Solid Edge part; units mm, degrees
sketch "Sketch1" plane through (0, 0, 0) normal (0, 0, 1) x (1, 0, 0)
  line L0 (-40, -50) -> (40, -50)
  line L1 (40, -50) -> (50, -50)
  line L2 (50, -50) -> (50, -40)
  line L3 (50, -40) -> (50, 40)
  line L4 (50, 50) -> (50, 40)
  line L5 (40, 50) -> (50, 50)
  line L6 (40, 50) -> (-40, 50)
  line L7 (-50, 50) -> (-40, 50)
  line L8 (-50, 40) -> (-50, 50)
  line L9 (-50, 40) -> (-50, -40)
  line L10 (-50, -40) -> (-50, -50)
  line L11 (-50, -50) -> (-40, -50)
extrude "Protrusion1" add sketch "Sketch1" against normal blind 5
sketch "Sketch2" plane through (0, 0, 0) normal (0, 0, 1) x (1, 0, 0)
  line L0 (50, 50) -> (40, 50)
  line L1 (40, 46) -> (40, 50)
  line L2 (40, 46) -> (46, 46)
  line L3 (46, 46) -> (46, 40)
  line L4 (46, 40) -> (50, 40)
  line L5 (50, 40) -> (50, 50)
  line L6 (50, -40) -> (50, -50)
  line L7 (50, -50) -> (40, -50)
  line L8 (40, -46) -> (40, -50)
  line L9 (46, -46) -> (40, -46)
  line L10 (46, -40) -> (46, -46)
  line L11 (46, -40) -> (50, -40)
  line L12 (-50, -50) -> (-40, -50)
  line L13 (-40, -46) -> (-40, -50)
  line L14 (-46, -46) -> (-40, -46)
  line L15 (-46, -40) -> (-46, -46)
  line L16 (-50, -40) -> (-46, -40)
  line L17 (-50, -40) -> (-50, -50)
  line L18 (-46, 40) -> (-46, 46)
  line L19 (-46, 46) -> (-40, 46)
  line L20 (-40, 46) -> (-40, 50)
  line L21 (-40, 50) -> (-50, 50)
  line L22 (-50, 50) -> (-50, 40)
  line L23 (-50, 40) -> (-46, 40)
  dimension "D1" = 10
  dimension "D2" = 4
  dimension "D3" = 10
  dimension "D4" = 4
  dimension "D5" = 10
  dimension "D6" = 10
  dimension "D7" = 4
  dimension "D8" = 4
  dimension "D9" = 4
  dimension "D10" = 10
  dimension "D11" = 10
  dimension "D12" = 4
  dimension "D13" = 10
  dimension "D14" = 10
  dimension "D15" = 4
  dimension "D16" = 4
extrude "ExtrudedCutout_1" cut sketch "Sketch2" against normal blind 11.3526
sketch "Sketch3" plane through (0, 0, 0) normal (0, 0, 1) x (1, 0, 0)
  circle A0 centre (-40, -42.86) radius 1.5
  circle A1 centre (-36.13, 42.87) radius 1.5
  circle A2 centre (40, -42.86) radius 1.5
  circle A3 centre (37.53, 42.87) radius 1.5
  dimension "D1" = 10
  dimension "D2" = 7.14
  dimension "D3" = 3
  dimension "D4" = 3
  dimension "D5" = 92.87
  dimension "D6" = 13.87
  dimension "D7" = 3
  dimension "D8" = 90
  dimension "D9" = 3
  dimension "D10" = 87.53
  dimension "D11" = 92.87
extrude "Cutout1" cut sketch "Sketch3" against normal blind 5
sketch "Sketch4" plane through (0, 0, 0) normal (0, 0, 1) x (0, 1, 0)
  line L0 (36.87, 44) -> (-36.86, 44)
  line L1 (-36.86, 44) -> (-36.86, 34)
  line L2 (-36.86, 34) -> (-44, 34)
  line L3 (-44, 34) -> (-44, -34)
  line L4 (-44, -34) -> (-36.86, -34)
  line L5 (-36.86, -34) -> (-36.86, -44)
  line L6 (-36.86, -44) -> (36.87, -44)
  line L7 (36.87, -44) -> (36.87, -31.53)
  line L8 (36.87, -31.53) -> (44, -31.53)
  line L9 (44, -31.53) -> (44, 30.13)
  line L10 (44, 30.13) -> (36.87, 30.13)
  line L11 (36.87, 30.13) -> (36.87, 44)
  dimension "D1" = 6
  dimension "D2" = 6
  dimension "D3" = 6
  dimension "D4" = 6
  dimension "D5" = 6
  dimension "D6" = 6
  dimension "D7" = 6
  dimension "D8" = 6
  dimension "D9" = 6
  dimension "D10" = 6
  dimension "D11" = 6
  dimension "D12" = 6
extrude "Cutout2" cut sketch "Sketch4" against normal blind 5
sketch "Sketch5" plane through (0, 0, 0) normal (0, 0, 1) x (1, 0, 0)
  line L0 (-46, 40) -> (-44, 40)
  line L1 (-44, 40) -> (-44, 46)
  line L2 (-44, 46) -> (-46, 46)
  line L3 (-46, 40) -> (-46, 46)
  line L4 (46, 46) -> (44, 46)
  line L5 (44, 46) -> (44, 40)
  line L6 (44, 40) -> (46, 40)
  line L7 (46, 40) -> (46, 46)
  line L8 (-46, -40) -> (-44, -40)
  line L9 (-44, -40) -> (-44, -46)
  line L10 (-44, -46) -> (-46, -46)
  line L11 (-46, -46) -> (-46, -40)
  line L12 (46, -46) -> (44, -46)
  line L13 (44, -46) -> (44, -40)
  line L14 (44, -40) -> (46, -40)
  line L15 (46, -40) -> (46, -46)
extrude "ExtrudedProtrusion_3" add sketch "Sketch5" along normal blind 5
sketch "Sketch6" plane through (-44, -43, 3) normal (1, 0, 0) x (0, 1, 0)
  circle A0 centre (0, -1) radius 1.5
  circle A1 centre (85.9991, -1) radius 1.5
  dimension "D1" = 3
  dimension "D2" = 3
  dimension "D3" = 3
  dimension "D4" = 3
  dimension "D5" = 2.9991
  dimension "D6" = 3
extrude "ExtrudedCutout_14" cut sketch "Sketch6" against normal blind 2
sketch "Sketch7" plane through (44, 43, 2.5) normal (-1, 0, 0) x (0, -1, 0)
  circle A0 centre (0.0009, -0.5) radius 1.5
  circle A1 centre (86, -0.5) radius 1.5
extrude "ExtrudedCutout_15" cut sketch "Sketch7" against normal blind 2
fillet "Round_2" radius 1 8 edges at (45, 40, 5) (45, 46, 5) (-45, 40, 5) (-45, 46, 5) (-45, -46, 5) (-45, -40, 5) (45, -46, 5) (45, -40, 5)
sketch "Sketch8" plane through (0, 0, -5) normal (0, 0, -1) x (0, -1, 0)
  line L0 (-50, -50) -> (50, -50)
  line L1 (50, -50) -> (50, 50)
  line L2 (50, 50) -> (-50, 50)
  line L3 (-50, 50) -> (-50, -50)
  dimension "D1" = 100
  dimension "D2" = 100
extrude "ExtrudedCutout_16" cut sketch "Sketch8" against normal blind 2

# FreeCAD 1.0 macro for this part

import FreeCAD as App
import Part
import Sketcher

V = App.Vector
Q = App.Units.Quantity


def edges_at(feature, points):
    """Names of the edges that pass closest to the given points."""
    edges = feature.Shape.Edges
    near = lambda p: min(range(len(edges)), key=lambda i: edges[i].distToShape(Part.Vertex(*p))[0])
    return sorted({f"Edge{near(p) + 1}" for p in points})

doc = App.newDocument("Part")
body = doc.addObject("PartDesign::Body", "Body")

# Sketch on XY plane
sketch1 = body.newObject("Sketcher::SketchObject", "Sketch")
sketch1.AttachmentSupport = (doc.getObject("XY_Plane"), [""])
sketch1.MapMode = "FlatFace"
sketch1.addGeometry([
    Part.LineSegment(V(-50, -50, 0), V(50, -50, 0)),
    Part.LineSegment(V(50, -50, 0), V(50, 50, 0)),
    Part.LineSegment(V(50, 50, 0), V(-50, 50, 0)),
    Part.LineSegment(V(-50, 50, 0), V(-50, -50, 0)),
], False)
sketch1.addConstraint([
    Sketcher.Constraint("Coincident", 0, 2, 1, 1),
    Sketcher.Constraint("Coincident", 1, 2, 2, 1),
    Sketcher.Constraint("Coincident", 2, 2, 3, 1),
    Sketcher.Constraint("Coincident", 3, 2, 0, 1),
    Sketcher.Constraint("Horizontal", 0),
    Sketcher.Constraint("Vertical", 1),
    Sketcher.Constraint("Horizontal", 2),
    Sketcher.Constraint("Vertical", 3),
    Sketcher.Constraint("Symmetric", 0, 2, 2, 2, -1, 1),
    Sketcher.Constraint("Equal", 2, 1),
    Sketcher.Constraint("DistanceX", 0, 1, 0, 2, Q("100 mm")),
])
pad1 = body.newObject("PartDesign::Pad", "Pad")
pad1.Profile = sketch1
pad1.Length = 5
pad1.Reversed = True

# Sketch on XY plane
sketch2 = body.newObject("Sketcher::SketchObject", "Sketch001")
sketch2.AttachmentSupport = (doc.getObject("XY_Plane"), [""])
sketch2.MapMode = "FlatFace"
sketch2.addGeometry([
    Part.LineSegment(V(50, 40, 0), V(50, 50, 0)),  # 0
    Part.LineSegment(V(50, 50, 0), V(40, 50, 0)),  # 1
    Part.LineSegment(V(40, 50, 0), V(40, 46, 0)),  # 2
    Part.LineSegment(V(40, 46, 0), V(46, 46, 0)),  # 3
    Part.LineSegment(V(46, 46, 0), V(46, 40, 0)),  # 4
    Part.LineSegment(V(46, 40, 0), V(50, 40, 0)),  # 5
    Part.LineSegment(V(50, -50, 0), V(50, -40, 0)),  # 6
    Part.LineSegment(V(50, -40, 0), V(46, -40, 0)),  # 7
    Part.LineSegment(V(46, -40, 0), V(46, -46, 0)),  # 8
    Part.LineSegment(V(46, -46, 0), V(40, -46, 0)),  # 9
    Part.LineSegment(V(40, -46, 0), V(40, -50, 0)),  # 10
    Part.LineSegment(V(40, -50, 0), V(50, -50, 0)),  # 11
    Part.LineSegment(V(-50, -40, 0), V(-50, -50, 0)),  # 12
    Part.LineSegment(V(-50, -50, 0), V(-40, -50, 0)),  # 13
    Part.LineSegment(V(-40, -50, 0), V(-40, -46, 0)),  # 14
    Part.LineSegment(V(-40, -46, 0), V(-46, -46, 0)),  # 15
    Part.LineSegment(V(-46, -46, 0), V(-46, -40, 0)),  # 16
    Part.LineSegment(V(-46, -40, 0), V(-50, -40, 0)),  # 17
    Part.LineSegment(V(-50, 40, 0), V(-46, 40, 0)),  # 18
    Part.LineSegment(V(-46, 40, 0), V(-46, 46, 0)),  # 19
    Part.LineSegment(V(-46, 46, 0), V(-40, 46, 0)),  # 20
    Part.LineSegment(V(-40, 46, 0), V(-40, 50, 0)),  # 21
    Part.LineSegment(V(-40, 50, 0), V(-50, 50, 0)),  # 22
    Part.LineSegment(V(-50, 50, 0), V(-50, 40, 0)),  # 23
], False)
sketch2.addConstraint([
    Sketcher.Constraint("Coincident", 0, 2, 1, 1),
    Sketcher.Constraint("Coincident", 1, 2, 2, 1),
    Sketcher.Constraint("Coincident", 2, 2, 3, 1),
    Sketcher.Constraint("Coincident", 3, 2, 4, 1),
    Sketcher.Constraint("Coincident", 4, 2, 5, 1),
    Sketcher.Constraint("Coincident", 5, 2, 0, 1),
    Sketcher.Constraint("Coincident", 6, 2, 7, 1),
    Sketcher.Constraint("Coincident", 7, 2, 8, 1),
    Sketcher.Constraint("Coincident", 8, 2, 9, 1),
    Sketcher.Constraint("Coincident", 9, 2, 10, 1),
    Sketcher.Constraint("Coincident", 10, 2, 11, 1),
    Sketcher.Constraint("Coincident", 11, 2, 6, 1),
    Sketcher.Constraint("Coincident", 12, 2, 13, 1),
    Sketcher.Constraint("Coincident", 13, 2, 14, 1),
    Sketcher.Constraint("Coincident", 14, 2, 15, 1),
    Sketcher.Constraint("Coincident", 15, 2, 16, 1),
    Sketcher.Constraint("Coincident", 16, 2, 17, 1),
    Sketcher.Constraint("Coincident", 17, 2, 12, 1),
    Sketcher.Constraint("Coincident", 18, 2, 19, 1),
    Sketcher.Constraint("Coincident", 19, 2, 20, 1),
    Sketcher.Constraint("Coincident", 20, 2, 21, 1),
    Sketcher.Constraint("Coincident", 21, 2, 22, 1),
    Sketcher.Constraint("Coincident", 22, 2, 23, 1),
    Sketcher.Constraint("Coincident", 23, 2, 18, 1),
    Sketcher.Constraint("Vertical", 0),
    Sketcher.Constraint("Horizontal", 1),
    Sketcher.Constraint("Vertical", 2),
    Sketcher.Constraint("Horizontal", 3),
    Sketcher.Constraint("Vertical", 4),
    Sketcher.Constraint("Horizontal", 5),
    Sketcher.Constraint("Vertical", 6),
    Sketcher.Constraint("Horizontal", 7),
    Sketcher.Constraint("Vertical", 8),
    Sketcher.Constraint("Horizontal", 9),
    Sketcher.Constraint("Vertical", 10),
    Sketcher.Constraint("Horizontal", 11),
    Sketcher.Constraint("Vertical", 12),
    Sketcher.Constraint("Horizontal", 13),
    Sketcher.Constraint("Vertical", 14),
    Sketcher.Constraint("Horizontal", 15),
    Sketcher.Constraint("Vertical", 16),
    Sketcher.Constraint("Horizontal", 17),
    Sketcher.Constraint("Horizontal", 18),
    Sketcher.Constraint("Vertical", 19),
    Sketcher.Constraint("Horizontal", 20),
    Sketcher.Constraint("Vertical", 21),
    Sketcher.Constraint("Horizontal", 22),
    Sketcher.Constraint("Vertical", 23),
    Sketcher.Constraint("Symmetric", 0, 2, 12, 2, -1, 1),
    Sketcher.Constraint("Symmetric", 2, 2, 14, 2, -1, 1),
    Sketcher.Constraint("Symmetric", 4, 2, 16, 2, -1, 1),
    Sketcher.Constraint("Symmetric", 7, 2, 18, 2, -1, 1),
    Sketcher.Constraint("Symmetric", 9, 2, 20, 2, -1, 1),
    Sketcher.Constraint("Symmetric", 11, 2, 22, 2, -1, 1),
    Sketcher.Constraint("Symmetric", 11, 2, 12, 2, -2),
    Sketcher.Constraint("Symmetric", 9, 2, 14, 2, -2),
    Sketcher.Constraint("Symmetric", 7, 2, 16, 2, -2),
    Sketcher.Constraint("Equal", 22, 0),
    Sketcher.Constraint("Equal", 18, 2),
    Sketcher.Constraint("DistanceX", -1, 1, 0, 2, Q("50 mm")),
    Sketcher.Constraint("DistanceY", -1, 1, 0, 2, Q("50 mm")),
    Sketcher.Constraint("DistanceX", -1, 1, 1, 2, Q("40 mm")),
    Sketcher.Constraint("DistanceY", -1, 1, 2, 2, Q("46 mm")),
])
pocket1 = body.newObject("PartDesign::Pocket", "Pocket")
pocket1.Profile = sketch2
pocket1.Length = 11.3526

# Sketch on XY plane
sketch3 = body.newObject("Sketcher::SketchObject", "Sketch002")
sketch3.AttachmentSupport = (doc.getObject("XY_Plane"), [""])
sketch3.MapMode = "FlatFace"
sketch3.addGeometry([
    Part.Circle(V(-40, -42.9, 0), V(0, 0, 1), 1.5),
    Part.Circle(V(-36.1, 42.9, 0), V(0, 0, 1), 1.5),
    Part.Circle(V(40, -42.9, 0), V(0, 0, 1), 1.5),
    Part.Circle(V(37.5, 42.9, 0), V(0, 0, 1), 1.5),
], False)
sketch3.addConstraint([
    Sketcher.Constraint("Equal", 0, 1),
    Sketcher.Constraint("Equal", 1, 2),
    Sketcher.Constraint("Equal", 2, 3),
    Sketcher.Constraint("Symmetric", 0, 3, 2, 3, -2),
    Sketcher.Constraint("Horizontal", 1, 3, 3, 3),
    Sketcher.Constraint("Diameter", 0, Q("3 mm")),
    Sketcher.Constraint("DistanceX", 0, 3, -1, 1, Q("40 mm")),
    Sketcher.Constraint("DistanceY", 0, 3, -1, 1, Q("42.86 mm")),
    Sketcher.Constraint("DistanceX", 1, 3, -1, 1, Q("36.13 mm")),
    Sketcher.Constraint("DistanceY", -1, 1, 1, 3, Q("42.87 mm")),
    Sketcher.Constraint("DistanceX", -1, 1, 3, 3, Q("37.53 mm")),
])
pocket2 = body.newObject("PartDesign::Pocket", "Pocket001")
pocket2.Profile = sketch3
pocket2.Length = 5

# Sketch on XY plane
sketch4 = body.newObject("Sketcher::SketchObject", "Sketch003")
sketch4.AttachmentSupport = (doc.getObject("XY_Plane"), [""])
sketch4.MapMode = "FlatFace"
sketch4.addGeometry([
    Part.LineSegment(V(-30, 37, 0), V(-44, 37, 0)),  # 0
    Part.LineSegment(V(-44, 37, 0), V(-44, -37, 0)),  # 1
    Part.LineSegment(V(-44, -37, 0), V(-34, -37, 0)),  # 2
    Part.LineSegment(V(-34, -37, 0), V(-34, -44, 0)),  # 3
    Part.LineSegment(V(-34, -44, 0), V(34, -44, 0)),  # 4
    Part.LineSegment(V(34, -44, 0), V(34, -37, 0)),  # 5
    Part.LineSegment(V(34, -37, 0), V(44, -37, 0)),  # 6
    Part.LineSegment(V(44, -37, 0), V(44, 37, 0)),  # 7
    Part.LineSegment(V(44, 37, 0), V(32, 37, 0)),  # 8
    Part.LineSegment(V(32, 37, 0), V(32, 44, 0)),  # 9
    Part.LineSegment(V(32, 44, 0), V(-30, 44, 0)),  # 10
    Part.LineSegment(V(-30, 44, 0), V(-30, 37, 0)),  # 11
], False)
sketch4.addConstraint([
    Sketcher.Constraint("Coincident", 0, 2, 1, 1),
    Sketcher.Constraint("Coincident", 1, 2, 2, 1),
    Sketcher.Constraint("Coincident", 2, 2, 3, 1),
    Sketcher.Constraint("Coincident", 3, 2, 4, 1),
    Sketcher.Constraint("Coincident", 4, 2, 5, 1),
    Sketcher.Constraint("Coincident", 5, 2, 6, 1),
    Sketcher.Constraint("Coincident", 6, 2, 7, 1),
    Sketcher.Constraint("Coincident", 7, 2, 8, 1),
    Sketcher.Constraint("Coincident", 8, 2, 9, 1),
    Sketcher.Constraint("Coincident", 9, 2, 10, 1),
    Sketcher.Constraint("Coincident", 10, 2, 11, 1),
    Sketcher.Constraint("Coincident", 11, 2, 0, 1),
    Sketcher.Constraint("Horizontal", 0),
    Sketcher.Constraint("Vertical", 1),
    Sketcher.Constraint("Horizontal", 2),
    Sketcher.Constraint("Vertical", 3),
    Sketcher.Constraint("Horizontal", 4),
    Sketcher.Constraint("Vertical", 5),
    Sketcher.Constraint("Horizontal", 6),
    Sketcher.Constraint("Vertical", 7),
    Sketcher.Constraint("Horizontal", 8),
    Sketcher.Constraint("Vertical", 9),
    Sketcher.Constraint("Horizontal", 10),
    Sketcher.Constraint("Vertical", 11),
    Sketcher.Constraint("Symmetric", 2, 2, 5, 2, -2),
    Sketcher.Constraint("Symmetric", 0, 2, 7, 2, -2),
    Sketcher.Constraint("DistanceX", 2, 1, 2, 2, Q("10 mm")),
    Sketcher.Constraint("DistanceX", 4, 1, 4, 2, Q("68 mm")),
    Sketcher.Constraint("DistanceY", 3, 2, -1, 1, Q("44 mm")),
    Sketcher.Constraint("DistanceY", -1, 1, 9, 2, Q("44 mm")),
    Sketcher.Constraint("DistanceX", 0, 2, 0, 1, Q("13.87 mm")),
    Sketcher.Constraint("DistanceX", 8, 2, 8, 1, Q("12.47 mm")),
    Sketcher.Constraint("DistanceY", 1, 2, 1, 1, Q("73.73 mm")),
    Sketcher.Constraint("DistanceY", 3, 2, 3, 1, Q("7.14 mm")),
])
pocket3 = body.newObject("PartDesign::Pocket", "Pocket002")
pocket3.Profile = sketch4
pocket3.Length = 5

# Sketch on XY plane
sketch5 = body.newObject("Sketcher::SketchObject", "Sketch004")
sketch5.AttachmentSupport = (doc.getObject("XY_Plane"), [""])
sketch5.MapMode = "FlatFace"
sketch5.addGeometry([
    Part.LineSegment(V(-46, 46, 0), V(-46, 40, 0)),  # 0
    Part.LineSegment(V(-46, 40, 0), V(-44, 40, 0)),  # 1
    Part.LineSegment(V(-44, 40, 0), V(-44, 46, 0)),  # 2
    Part.LineSegment(V(-44, 46, 0), V(-46, 46, 0)),  # 3
    Part.LineSegment(V(46, 40, 0), V(46, 46, 0)),  # 4
    Part.LineSegment(V(46, 46, 0), V(44, 46, 0)),  # 5
    Part.LineSegment(V(44, 46, 0), V(44, 40, 0)),  # 6
    Part.LineSegment(V(44, 40, 0), V(46, 40, 0)),  # 7
    Part.LineSegment(V(-44, -40, 0), V(-46, -40, 0)),  # 8
    Part.LineSegment(V(-46, -40, 0), V(-46, -46, 0)),  # 9
    Part.LineSegment(V(-46, -46, 0), V(-44, -46, 0)),  # 10
    Part.LineSegment(V(-44, -46, 0), V(-44, -40, 0)),  # 11
    Part.LineSegment(V(44, -46, 0), V(46, -46, 0)),  # 12
    Part.LineSegment(V(46, -46, 0), V(46, -40, 0)),  # 13
    Part.LineSegment(V(46, -40, 0), V(44, -40, 0)),  # 14
    Part.LineSegment(V(44, -40, 0), V(44, -46, 0)),  # 15
], False)
sketch5.addConstraint([
    Sketcher.Constraint("Coincident", 0, 2, 1, 1),
    Sketcher.Constraint("Coincident", 1, 2, 2, 1),
    Sketcher.Constraint("Coincident", 2, 2, 3, 1),
    Sketcher.Constraint("Coincident", 3, 2, 0, 1),
    Sketcher.Constraint("Coincident", 4, 2, 5, 1),
    Sketcher.Constraint("Coincident", 5, 2, 6, 1),
    Sketcher.Constraint("Coincident", 6, 2, 7, 1),
    Sketcher.Constraint("Coincident", 7, 2, 4, 1),
    Sketcher.Constraint("Coincident", 8, 2, 9, 1),
    Sketcher.Constraint("Coincident", 9, 2, 10, 1),
    Sketcher.Constraint("Coincident", 10, 2, 11, 1),
    Sketcher.Constraint("Coincident", 11, 2, 8, 1),
    Sketcher.Constraint("Coincident", 12, 2, 13, 1),
    Sketcher.Constraint("Coincident", 13, 2, 14, 1),
    Sketcher.Constraint("Coincident", 14, 2, 15, 1),
    Sketcher.Constraint("Coincident", 15, 2, 12, 1),
    Sketcher.Constraint("Vertical", 0),
    Sketcher.Constraint("Horizontal", 1),
    Sketcher.Constraint("Vertical", 2),
    Sketcher.Constraint("Horizontal", 3),
    Sketcher.Constraint("Vertical", 4),
    Sketcher.Constraint("Horizontal", 5),
    Sketcher.Constraint("Vertical", 6),
    Sketcher.Constraint("Horizontal", 7),
    Sketcher.Constraint("Horizontal", 8),
    Sketcher.Constraint("Vertical", 9),
    Sketcher.Constraint("Horizontal", 10),
    Sketcher.Constraint("Vertical", 11),
    Sketcher.Constraint("Horizontal", 12),
    Sketcher.Constraint("Vertical", 13),
    Sketcher.Constraint("Horizontal", 14),
    Sketcher.Constraint("Vertical", 15),
    Sketcher.Constraint("Symmetric", 7, 2, 8, 2, -1, 1),
    Sketcher.Constraint("Symmetric", 5, 2, 10, 2, -1, 1),
    Sketcher.Constraint("Symmetric", 3, 2, 12, 2, -1, 1),
    Sketcher.Constraint("Symmetric", 1, 2, 14, 2, -1, 1),
    Sketcher.Constraint("Symmetric", 3, 2, 4, 2, -2),
    Sketcher.Constraint("Symmetric", 1, 2, 6, 2, -2),
    Sketcher.Constraint("DistanceX", 1, 1, 1, 2, Q("2 mm")),
    Sketcher.Constraint("DistanceY", 0, 2, 0, 1, Q("6 mm")),
    Sketcher.Constraint("DistanceX", 0, 2, -1, 1, Q("46 mm")),
    Sketcher.Constraint("DistanceY", -1, 1, 0, 2, Q("40 mm")),
])
pad2 = body.newObject("PartDesign::Pad", "Pad001")
pad2.Profile = sketch5
pad2.Length = 5

# Sketch on YZ plane
sketch6 = body.newObject("Sketcher::SketchObject", "Sketch005")
sketch6.AttachmentSupport = (doc.getObject("YZ_Plane"), [""])
sketch6.MapMode = "FlatFace"
sketch6.AttachmentOffset = App.Placement(V(0, 0, -44), App.Rotation())
sketch6.addGeometry([
    Part.Circle(V(-43, 2, 0), V(0, 0, 1), 1.5),
    Part.Circle(V(43, 2, 0), V(0, 0, 1), 1.5),
], False)
sketch6.addConstraint([
    Sketcher.Constraint("Equal", 0, 1),
    Sketcher.Constraint("Horizontal", 0, 3, 1, 3),
    Sketcher.Constraint("Diameter", 0, Q("3 mm")),
    Sketcher.Constraint("DistanceX", 0, 3, -1, 1, Q("43 mm")),
    Sketcher.Constraint("DistanceY", -1, 1, 0, 3, Q("2 mm")),
    Sketcher.Constraint("DistanceX", -1, 1, 1, 3, Q("42.999 mm")),
])
pocket4 = body.newObject("PartDesign::Pocket", "Pocket003")
pocket4.Profile = sketch6
pocket4.Length = 2

# Sketch on YZ plane
sketch7 = body.newObject("Sketcher::SketchObject", "Sketch006")
sketch7.AttachmentSupport = (doc.getObject("YZ_Plane"), [""])
sketch7.MapMode = "FlatFace"
sketch7.AttachmentOffset = App.Placement(V(0, 0, 44), App.Rotation())
sketch7.addGeometry([
    Part.Circle(V(43, 2, 0), V(0, 0, 1), 1.5),
    Part.Circle(V(-43, 2, 0), V(0, 0, 1), 1.5),
], False)
sketch7.addConstraint([
    Sketcher.Constraint("Equal", 0, 1),
    Sketcher.Constraint("Horizontal", 0, 3, 1, 3),
    Sketcher.Constraint("Diameter", 0, Q("3 mm")),
    Sketcher.Constraint("DistanceY", -1, 1, 0, 3, Q("2 mm")),
    Sketcher.Constraint("DistanceX", 1, 3, -1, 1, Q("43 mm")),
    Sketcher.Constraint("DistanceX", -1, 1, 0, 3, Q("42.999 mm")),
])
pocket5 = body.newObject("PartDesign::Pocket", "Pocket004")
pocket5.Profile = sketch7
pocket5.Length = 2
pocket5.Reversed = True
doc.recompute()

fillet = body.newObject("PartDesign::Fillet", "Fillet")
fillet.Base = (pocket5, edges_at(pocket5, [
    (45, 40, 5),
    (45, 46, 5),
    (-45, 40, 5),
    (-45, 46, 5),
    (-45, -46, 5),
    (-45, -40, 5),
    (45, -46, 5),
    (45, -40, 5),
]))
fillet.Radius = 1

# Sketch on XY plane
sketch8 = body.newObject("Sketcher::SketchObject", "Sketch007")
sketch8.AttachmentSupport = (doc.getObject("XY_Plane"), [""])
sketch8.MapMode = "FlatFace"
sketch8.AttachmentOffset = App.Placement(V(0, 0, -5), App.Rotation())
sketch8.addGeometry([
    Part.LineSegment(V(-50, 50, 0), V(50, 50, 0)),
    Part.LineSegment(V(50, 50, 0), V(50, -50, 0)),
    Part.LineSegment(V(50, -50, 0), V(-50, -50, 0)),
    Part.LineSegment(V(-50, -50, 0), V(-50, 50, 0)),
], False)
sketch8.addConstraint([
    Sketcher.Constraint("Coincident", 0, 2, 1, 1),
    Sketcher.Constraint("Coincident", 1, 2, 2, 1),
    Sketcher.Constraint("Coincident", 2, 2, 3, 1),
    Sketcher.Constraint("Coincident", 3, 2, 0, 1),
    Sketcher.Constraint("Horizontal", 0),
    Sketcher.Constraint("Vertical", 1),
    Sketcher.Constraint("Horizontal", 2),
    Sketcher.Constraint("Vertical", 3),
    Sketcher.Constraint("Symmetric", 0, 2, 2, 2, -1, 1),
    Sketcher.Constraint("Equal", 2, 1),
    Sketcher.Constraint("DistanceX", -1, 1, 0, 2, Q("50 mm")),
])
pocket6 = body.newObject("PartDesign::Pocket", "Pocket005")
pocket6.Profile = sketch8
pocket6.Length = 2
pocket6.Reversed = True

doc.recompute()
